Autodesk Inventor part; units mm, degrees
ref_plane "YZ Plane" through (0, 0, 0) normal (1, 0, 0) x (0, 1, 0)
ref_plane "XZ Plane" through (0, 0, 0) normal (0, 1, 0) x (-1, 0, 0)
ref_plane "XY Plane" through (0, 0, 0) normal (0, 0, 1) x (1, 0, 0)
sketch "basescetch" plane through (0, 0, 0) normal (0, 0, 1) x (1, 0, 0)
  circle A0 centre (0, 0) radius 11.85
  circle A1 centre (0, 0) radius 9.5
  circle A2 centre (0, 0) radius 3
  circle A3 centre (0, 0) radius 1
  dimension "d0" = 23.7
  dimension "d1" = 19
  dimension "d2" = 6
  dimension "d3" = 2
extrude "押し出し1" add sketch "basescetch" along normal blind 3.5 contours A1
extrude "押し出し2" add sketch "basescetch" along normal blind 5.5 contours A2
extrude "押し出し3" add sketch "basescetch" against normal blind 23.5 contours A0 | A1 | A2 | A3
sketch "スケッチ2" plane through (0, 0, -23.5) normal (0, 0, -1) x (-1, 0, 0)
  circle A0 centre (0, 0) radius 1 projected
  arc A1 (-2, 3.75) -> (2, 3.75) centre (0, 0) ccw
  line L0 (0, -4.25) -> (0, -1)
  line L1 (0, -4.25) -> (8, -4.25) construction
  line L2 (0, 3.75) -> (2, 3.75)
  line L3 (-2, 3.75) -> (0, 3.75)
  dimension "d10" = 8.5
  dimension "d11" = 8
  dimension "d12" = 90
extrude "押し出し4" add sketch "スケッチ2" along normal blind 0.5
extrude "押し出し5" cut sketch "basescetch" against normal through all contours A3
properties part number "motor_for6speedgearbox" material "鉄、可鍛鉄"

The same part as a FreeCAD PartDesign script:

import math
import FreeCAD as App
import Part
import Sketcher
from FreeCAD import Vector
Q = App.Units.Quantity

doc = App.newDocument("Part")
body = doc.addObject("PartDesign::Body", "Body")

# Sketch on XY plane
sketch1 = body.newObject("Sketcher::SketchObject", "Sketch")
sketch1.AttachmentSupport = (doc.getObject("XY_Plane"), [""])
sketch1.MapMode = "FlatFace"
sketch1.addGeometry(Part.Circle(Vector(0, 0, 0), Vector(0, 0, 1), 9.5), False)
sketch1.addGeometry(Part.Circle(Vector(0, 0, 0), Vector(0, 0, 1), 3), False)
sketch1.addConstraint(Sketcher.Constraint("Coincident", 0, 3, -1, 1))
sketch1.addConstraint(Sketcher.Constraint("Coincident", 1, 3, -1, 1))
sketch1.addConstraint(Sketcher.Constraint("Diameter", 0, Q("19 mm")))
sketch1.addConstraint(Sketcher.Constraint("Diameter", 1, Q("6 mm")))
pad1 = body.newObject("PartDesign::Pad", "Pad")
pad1.Profile = sketch1
pad1.Length = 3.5

# Sketch on XY plane
sketch2 = body.newObject("Sketcher::SketchObject", "Sketch001")
sketch2.AttachmentSupport = (doc.getObject("XY_Plane"), [""])
sketch2.MapMode = "FlatFace"
sketch2.addGeometry(Part.Circle(Vector(0, 0, 0), Vector(0, 0, 1), 3), False)
sketch2.addGeometry(Part.Circle(Vector(0, 0, 0), Vector(0, 0, 1), 1), False)
sketch2.addConstraint(Sketcher.Constraint("Coincident", 0, 3, -1, 1))
sketch2.addConstraint(Sketcher.Constraint("Coincident", 1, 3, -1, 1))
sketch2.addConstraint(Sketcher.Constraint("Diameter", 0, Q("6 mm")))
sketch2.addConstraint(Sketcher.Constraint("Diameter", 1, Q("2 mm")))
pad2 = body.newObject("PartDesign::Pad", "Pad001")
pad2.Profile = sketch2
pad2.Length = 5.5

# Sketch on XY plane
sketch3 = body.newObject("Sketcher::SketchObject", "Sketch002")
sketch3.AttachmentSupport = (doc.getObject("XY_Plane"), [""])
sketch3.MapMode = "FlatFace"
sketch3.addGeometry(Part.Circle(Vector(0, 0, 0), Vector(0, 0, 1), 12), False)
sketch3.addConstraint(Sketcher.Constraint("Coincident", 0, 3, -1, 1))
sketch3.addConstraint(Sketcher.Constraint("Diameter", 0, Q("23.7 mm")))
pad3 = body.newObject("PartDesign::Pad", "Pad002")
pad3.Profile = sketch3
pad3.Length = 23.5
pad3.Reversed = True

# Sketch on XY plane
sketch4 = body.newObject("Sketcher::SketchObject", "Sketch003")
sketch4.AttachmentSupport = (doc.getObject("XY_Plane"), [""])
sketch4.MapMode = "FlatFace"
sketch4.AttachmentOffset = App.Placement(Vector(0, 0, -23.5), App.Rotation())
sketch4.addGeometry(Part.ArcOfCircle(Part.Circle(Vector(0, 0, 0), Vector(0, 0, 1), 4.2), math.radians(-90), math.radians(62)), False)
sketch4.addGeometry(Part.ArcOfCircle(Part.Circle(Vector(0, 0, 0), Vector(0, 0, 1), 4.2), math.radians(118), math.radians(270)), False)
sketch4.addGeometry(Part.LineSegment(Vector(-2, 3.8, 0), Vector(2, 3.8, 0)), False)
sketch4.addGeometry(Part.Circle(Vector(0, 0, 0), Vector(0, 0, 1), 1), False)
sketch4.addConstraint(Sketcher.Constraint("Tangent", 0, 1, 1, 2))
sketch4.addConstraint(Sketcher.Constraint("Coincident", 1, 1, 2, 1))
sketch4.addConstraint(Sketcher.Constraint("Coincident", 2, 2, 0, 2))
sketch4.addConstraint(Sketcher.Constraint("Horizontal", 2))
sketch4.addConstraint(Sketcher.Constraint("Coincident", 0, 3, -1, 1))
sketch4.addConstraint(Sketcher.Constraint("Coincident", 3, 3, -1, 1))
sketch4.addConstraint(Sketcher.Constraint("Equal", 0, 1))
sketch4.addConstraint(Sketcher.Constraint("PointOnObject", 0, 1, -2))
sketch4.addConstraint(Sketcher.Constraint("Radius", 0, Q("4.25 mm")))
sketch4.addConstraint(Sketcher.Constraint("Diameter", 3, Q("2 mm")))
sketch4.addConstraint(Sketcher.Constraint("DistanceY", 0, 1, 1, 1, Q("8 mm")))
pad4 = body.newObject("PartDesign::Pad", "Pad003")
pad4.Profile = sketch4
pad4.Length = 0.5
pad4.Reversed = True

# Sketch on XY plane
sketch5 = body.newObject("Sketcher::SketchObject", "Sketch004")
sketch5.AttachmentSupport = (doc.getObject("XY_Plane"), [""])
sketch5.MapMode = "FlatFace"
sketch5.addGeometry(Part.Circle(Vector(0, 0, 0), Vector(0, 0, 1), 1), False)
sketch5.addConstraint(Sketcher.Constraint("Coincident", 0, 3, -1, 1))
sketch5.addConstraint(Sketcher.Constraint("Diameter", 0, Q("2 mm")))
pocket1 = body.newObject("PartDesign::Pocket", "Pocket")
pocket1.Profile = sketch5
pocket1.Type = "ThroughAll"

doc.recompute()
